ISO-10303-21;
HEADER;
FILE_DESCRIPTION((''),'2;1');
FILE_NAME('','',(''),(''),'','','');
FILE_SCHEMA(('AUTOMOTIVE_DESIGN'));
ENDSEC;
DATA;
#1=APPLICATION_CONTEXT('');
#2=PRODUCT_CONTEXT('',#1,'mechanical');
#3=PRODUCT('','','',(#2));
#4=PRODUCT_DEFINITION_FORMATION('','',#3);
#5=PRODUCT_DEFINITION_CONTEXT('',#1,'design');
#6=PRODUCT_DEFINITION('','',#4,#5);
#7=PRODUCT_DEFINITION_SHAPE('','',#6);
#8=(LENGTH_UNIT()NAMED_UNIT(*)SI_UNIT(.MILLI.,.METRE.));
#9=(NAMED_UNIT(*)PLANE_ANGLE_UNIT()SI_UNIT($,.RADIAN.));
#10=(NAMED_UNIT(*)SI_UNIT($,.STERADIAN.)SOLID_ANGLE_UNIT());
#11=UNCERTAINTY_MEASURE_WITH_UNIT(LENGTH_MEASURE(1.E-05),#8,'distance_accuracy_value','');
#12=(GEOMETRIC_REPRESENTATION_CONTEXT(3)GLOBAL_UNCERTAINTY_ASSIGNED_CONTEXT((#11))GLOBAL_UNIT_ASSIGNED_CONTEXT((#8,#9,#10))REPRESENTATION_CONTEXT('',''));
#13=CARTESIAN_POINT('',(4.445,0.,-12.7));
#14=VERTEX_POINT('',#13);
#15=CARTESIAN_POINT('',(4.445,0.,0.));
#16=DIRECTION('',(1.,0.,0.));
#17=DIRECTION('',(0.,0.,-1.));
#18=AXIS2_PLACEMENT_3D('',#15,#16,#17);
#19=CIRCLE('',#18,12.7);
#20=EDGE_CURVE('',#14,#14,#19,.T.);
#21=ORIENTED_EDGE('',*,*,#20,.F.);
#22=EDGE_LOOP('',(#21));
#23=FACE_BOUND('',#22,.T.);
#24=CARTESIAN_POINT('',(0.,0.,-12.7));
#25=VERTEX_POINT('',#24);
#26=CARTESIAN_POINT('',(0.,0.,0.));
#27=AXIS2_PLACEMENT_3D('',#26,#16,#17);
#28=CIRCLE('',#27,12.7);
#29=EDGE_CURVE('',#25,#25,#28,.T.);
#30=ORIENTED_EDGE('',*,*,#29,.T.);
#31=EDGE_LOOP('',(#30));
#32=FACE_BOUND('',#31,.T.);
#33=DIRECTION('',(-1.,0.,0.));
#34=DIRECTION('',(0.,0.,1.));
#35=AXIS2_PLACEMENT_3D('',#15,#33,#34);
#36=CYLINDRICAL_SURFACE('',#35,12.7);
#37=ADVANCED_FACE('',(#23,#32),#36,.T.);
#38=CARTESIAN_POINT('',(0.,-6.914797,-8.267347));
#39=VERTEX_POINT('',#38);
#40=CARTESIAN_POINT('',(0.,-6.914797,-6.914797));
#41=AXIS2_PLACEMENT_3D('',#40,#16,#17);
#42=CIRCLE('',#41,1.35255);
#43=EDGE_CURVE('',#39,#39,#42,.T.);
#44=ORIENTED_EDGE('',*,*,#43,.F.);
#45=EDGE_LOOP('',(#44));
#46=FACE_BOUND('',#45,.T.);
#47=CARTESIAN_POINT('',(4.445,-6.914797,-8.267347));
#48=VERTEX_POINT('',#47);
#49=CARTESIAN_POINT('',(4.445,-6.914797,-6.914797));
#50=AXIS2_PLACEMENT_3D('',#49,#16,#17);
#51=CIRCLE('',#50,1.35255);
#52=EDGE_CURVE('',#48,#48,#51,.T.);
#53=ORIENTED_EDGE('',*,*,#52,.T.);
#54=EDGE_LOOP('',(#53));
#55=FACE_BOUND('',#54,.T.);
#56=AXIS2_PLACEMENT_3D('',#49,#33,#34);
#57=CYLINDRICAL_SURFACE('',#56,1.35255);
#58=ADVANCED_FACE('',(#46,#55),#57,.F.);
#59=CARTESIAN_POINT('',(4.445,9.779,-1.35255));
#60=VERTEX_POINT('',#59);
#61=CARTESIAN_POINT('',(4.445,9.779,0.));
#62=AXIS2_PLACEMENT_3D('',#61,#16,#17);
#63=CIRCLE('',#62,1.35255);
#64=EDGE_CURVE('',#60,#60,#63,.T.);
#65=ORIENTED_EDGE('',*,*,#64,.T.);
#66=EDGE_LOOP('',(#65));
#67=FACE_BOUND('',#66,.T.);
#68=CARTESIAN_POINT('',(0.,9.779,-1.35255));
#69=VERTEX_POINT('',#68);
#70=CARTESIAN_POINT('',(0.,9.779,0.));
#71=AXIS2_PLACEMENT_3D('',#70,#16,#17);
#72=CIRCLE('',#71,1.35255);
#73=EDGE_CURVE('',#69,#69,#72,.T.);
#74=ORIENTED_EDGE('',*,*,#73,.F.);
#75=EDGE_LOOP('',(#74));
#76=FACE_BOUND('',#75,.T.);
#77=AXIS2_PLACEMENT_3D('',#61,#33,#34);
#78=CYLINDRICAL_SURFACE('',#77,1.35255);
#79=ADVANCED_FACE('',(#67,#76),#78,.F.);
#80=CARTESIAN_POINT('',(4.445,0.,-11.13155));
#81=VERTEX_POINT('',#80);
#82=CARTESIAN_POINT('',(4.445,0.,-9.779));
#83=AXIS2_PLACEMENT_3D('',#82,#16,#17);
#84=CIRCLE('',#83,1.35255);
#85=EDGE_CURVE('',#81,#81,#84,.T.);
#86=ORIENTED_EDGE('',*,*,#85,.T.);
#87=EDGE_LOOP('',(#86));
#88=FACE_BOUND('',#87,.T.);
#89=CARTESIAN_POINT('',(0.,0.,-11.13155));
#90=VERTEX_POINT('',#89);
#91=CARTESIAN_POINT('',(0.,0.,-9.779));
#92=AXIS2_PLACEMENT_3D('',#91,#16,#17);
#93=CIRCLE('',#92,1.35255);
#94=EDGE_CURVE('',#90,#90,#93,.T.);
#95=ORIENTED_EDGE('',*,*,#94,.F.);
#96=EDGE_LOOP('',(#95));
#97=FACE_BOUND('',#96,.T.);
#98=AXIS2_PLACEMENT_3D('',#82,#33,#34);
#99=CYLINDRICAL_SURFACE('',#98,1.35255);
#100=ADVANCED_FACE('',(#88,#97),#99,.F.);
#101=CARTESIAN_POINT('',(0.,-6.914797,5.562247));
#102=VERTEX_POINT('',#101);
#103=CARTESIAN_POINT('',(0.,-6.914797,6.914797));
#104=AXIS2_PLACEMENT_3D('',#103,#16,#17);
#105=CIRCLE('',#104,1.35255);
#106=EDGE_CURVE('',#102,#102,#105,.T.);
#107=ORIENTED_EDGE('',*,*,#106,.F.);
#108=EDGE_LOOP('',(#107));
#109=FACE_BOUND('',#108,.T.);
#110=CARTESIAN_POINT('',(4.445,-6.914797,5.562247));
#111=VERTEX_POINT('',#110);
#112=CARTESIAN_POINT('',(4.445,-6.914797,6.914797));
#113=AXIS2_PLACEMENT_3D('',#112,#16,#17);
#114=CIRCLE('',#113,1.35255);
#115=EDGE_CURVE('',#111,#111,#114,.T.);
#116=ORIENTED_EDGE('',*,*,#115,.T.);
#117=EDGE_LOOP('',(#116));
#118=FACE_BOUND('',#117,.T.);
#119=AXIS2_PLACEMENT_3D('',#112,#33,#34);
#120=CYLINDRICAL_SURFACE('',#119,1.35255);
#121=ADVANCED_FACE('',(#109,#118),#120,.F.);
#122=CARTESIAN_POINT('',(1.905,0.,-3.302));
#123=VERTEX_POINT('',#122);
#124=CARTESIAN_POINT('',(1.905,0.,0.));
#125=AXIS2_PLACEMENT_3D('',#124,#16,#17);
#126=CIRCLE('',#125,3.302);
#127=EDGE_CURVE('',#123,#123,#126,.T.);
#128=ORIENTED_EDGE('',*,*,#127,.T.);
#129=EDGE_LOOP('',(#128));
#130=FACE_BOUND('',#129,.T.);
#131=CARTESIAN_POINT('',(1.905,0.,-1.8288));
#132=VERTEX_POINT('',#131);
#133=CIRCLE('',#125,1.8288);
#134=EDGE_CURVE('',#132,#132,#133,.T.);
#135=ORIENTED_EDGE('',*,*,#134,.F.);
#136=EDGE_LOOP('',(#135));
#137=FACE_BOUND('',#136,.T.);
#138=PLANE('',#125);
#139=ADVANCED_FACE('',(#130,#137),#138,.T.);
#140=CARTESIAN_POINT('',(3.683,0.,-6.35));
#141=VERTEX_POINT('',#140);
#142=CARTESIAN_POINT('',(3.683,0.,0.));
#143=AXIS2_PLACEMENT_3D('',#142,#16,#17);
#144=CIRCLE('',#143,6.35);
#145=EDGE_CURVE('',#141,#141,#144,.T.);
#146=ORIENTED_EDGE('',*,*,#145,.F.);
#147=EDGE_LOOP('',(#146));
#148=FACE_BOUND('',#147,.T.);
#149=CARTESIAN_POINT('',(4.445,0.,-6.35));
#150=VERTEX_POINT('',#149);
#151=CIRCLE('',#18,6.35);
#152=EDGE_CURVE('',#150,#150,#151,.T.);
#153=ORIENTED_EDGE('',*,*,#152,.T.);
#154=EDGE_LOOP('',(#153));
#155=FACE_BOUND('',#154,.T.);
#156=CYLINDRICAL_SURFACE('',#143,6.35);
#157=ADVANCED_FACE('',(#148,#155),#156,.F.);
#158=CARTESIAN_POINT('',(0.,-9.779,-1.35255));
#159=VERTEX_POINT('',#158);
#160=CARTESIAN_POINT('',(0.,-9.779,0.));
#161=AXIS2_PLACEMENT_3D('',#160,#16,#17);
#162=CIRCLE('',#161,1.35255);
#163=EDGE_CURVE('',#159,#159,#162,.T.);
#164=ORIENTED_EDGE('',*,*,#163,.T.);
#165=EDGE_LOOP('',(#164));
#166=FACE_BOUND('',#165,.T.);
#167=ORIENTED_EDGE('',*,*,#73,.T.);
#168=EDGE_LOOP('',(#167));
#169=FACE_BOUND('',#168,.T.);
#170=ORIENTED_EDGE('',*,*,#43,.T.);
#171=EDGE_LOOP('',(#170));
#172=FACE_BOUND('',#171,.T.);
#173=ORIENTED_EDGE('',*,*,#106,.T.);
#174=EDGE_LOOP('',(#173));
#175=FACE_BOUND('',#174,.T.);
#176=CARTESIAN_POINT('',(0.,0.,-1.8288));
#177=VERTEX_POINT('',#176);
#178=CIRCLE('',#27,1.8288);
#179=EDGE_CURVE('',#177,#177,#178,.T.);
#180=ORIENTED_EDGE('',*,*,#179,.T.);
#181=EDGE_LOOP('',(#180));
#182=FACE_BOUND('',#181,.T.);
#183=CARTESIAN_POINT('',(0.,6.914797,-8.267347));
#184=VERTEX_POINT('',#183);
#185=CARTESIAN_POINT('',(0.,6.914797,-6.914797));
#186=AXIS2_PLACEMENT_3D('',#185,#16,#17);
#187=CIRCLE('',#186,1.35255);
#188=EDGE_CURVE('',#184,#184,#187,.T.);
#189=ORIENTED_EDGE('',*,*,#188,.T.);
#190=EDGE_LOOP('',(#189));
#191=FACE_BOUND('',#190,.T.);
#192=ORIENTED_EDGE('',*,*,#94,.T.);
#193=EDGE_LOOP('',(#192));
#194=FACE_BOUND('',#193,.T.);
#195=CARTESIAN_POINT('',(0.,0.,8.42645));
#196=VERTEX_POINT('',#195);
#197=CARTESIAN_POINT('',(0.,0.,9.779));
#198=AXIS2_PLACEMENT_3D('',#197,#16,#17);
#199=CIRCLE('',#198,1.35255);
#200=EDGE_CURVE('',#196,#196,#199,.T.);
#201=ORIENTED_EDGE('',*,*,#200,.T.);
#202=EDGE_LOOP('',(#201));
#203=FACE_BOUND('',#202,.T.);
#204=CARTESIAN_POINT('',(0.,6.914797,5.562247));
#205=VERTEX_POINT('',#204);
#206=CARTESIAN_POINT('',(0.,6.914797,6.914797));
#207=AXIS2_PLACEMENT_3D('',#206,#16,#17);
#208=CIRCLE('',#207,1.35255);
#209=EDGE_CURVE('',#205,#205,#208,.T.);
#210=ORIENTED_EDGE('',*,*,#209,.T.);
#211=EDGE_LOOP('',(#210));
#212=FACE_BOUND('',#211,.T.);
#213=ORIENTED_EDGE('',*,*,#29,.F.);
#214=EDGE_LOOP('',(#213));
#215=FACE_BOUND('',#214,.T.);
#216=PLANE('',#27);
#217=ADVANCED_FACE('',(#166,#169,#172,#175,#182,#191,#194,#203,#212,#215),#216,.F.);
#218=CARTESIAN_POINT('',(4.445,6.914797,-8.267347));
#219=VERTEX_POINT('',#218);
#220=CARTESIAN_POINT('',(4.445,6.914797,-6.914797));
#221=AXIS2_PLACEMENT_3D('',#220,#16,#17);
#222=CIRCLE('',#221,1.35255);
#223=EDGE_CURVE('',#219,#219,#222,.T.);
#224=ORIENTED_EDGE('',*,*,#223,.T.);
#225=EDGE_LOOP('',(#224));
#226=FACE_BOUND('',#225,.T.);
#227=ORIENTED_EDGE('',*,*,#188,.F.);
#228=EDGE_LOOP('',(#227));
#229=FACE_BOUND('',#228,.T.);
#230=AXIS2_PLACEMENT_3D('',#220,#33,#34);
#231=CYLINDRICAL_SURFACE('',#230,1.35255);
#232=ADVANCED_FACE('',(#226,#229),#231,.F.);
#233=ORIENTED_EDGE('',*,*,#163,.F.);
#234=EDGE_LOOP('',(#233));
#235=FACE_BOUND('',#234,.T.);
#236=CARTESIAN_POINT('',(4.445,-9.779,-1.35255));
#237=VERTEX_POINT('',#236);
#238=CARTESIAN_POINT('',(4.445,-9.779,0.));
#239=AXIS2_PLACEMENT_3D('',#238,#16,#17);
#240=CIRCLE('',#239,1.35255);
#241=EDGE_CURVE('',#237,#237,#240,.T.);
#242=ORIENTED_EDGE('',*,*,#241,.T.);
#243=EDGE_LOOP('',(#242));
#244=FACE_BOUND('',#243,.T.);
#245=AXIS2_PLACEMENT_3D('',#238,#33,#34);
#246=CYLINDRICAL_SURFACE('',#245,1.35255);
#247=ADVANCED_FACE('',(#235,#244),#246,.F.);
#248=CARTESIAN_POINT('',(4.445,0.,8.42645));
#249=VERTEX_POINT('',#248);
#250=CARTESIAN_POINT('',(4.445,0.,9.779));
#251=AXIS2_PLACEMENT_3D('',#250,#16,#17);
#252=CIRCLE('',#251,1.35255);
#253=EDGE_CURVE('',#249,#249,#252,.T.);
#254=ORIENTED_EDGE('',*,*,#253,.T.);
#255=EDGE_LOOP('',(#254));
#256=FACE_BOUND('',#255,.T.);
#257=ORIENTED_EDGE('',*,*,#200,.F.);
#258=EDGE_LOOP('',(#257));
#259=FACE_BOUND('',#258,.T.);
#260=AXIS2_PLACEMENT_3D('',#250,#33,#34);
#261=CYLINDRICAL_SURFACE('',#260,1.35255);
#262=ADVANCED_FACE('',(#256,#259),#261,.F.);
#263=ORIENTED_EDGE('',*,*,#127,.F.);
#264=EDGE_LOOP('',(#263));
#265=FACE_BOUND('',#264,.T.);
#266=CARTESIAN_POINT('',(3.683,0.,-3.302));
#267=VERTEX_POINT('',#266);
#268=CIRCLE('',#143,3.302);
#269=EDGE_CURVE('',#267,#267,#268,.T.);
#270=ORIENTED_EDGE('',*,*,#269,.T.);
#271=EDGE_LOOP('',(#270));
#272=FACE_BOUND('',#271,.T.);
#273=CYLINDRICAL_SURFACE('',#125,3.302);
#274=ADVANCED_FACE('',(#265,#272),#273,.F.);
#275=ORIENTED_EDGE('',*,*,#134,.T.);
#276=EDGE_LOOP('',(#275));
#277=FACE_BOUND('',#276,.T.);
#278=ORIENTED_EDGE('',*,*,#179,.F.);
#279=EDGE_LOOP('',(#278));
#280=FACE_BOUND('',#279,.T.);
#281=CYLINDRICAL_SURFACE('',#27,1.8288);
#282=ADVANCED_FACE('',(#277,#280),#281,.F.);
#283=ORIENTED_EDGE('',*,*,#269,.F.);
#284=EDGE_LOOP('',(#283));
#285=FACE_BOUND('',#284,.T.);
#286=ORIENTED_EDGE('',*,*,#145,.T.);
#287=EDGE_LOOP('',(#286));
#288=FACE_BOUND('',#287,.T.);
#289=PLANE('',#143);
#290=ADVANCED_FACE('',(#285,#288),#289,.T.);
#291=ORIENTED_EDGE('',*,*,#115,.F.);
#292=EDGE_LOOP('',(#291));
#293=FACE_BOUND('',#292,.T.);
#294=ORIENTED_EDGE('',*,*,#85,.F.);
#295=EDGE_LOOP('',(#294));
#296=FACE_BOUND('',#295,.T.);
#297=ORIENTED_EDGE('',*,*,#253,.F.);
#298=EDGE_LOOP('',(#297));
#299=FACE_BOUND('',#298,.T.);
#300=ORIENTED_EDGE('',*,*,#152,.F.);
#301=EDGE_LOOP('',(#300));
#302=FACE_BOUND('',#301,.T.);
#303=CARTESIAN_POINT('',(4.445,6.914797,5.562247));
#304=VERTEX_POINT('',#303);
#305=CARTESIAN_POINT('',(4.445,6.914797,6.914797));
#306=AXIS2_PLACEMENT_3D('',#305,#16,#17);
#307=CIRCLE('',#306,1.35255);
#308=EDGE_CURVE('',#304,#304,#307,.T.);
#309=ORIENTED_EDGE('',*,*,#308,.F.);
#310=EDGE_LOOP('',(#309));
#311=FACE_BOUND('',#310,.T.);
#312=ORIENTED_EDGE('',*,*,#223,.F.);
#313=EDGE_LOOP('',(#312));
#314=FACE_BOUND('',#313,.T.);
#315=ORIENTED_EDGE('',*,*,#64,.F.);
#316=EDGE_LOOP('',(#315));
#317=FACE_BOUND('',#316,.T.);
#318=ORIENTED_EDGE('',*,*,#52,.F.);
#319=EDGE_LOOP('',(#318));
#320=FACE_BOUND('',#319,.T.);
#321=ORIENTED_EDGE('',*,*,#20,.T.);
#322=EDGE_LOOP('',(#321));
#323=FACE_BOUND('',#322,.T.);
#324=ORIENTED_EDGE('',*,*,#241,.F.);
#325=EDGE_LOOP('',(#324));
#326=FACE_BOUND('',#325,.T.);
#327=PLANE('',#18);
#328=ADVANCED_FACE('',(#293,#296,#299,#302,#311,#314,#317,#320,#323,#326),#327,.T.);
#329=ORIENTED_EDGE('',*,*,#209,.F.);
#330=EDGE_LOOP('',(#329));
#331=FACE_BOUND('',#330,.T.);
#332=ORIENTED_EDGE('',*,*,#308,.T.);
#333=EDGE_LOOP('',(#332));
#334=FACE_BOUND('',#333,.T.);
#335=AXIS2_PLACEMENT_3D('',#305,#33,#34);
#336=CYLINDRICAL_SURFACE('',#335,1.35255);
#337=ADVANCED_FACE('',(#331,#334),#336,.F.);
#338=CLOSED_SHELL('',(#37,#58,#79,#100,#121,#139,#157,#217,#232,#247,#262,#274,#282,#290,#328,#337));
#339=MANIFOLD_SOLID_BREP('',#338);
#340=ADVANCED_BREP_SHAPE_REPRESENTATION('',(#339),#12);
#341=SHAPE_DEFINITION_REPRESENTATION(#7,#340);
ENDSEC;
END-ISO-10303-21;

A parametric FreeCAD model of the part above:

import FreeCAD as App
import Part
import Sketcher
from FreeCAD import Vector
Q = App.Units.Quantity

doc = App.newDocument("Part")
body = doc.addObject("PartDesign::Body", "Body")

# Sketch on YZ plane
sketch1 = body.newObject("Sketcher::SketchObject", "Sketch")
sketch1.AttachmentSupport = (doc.getObject("YZ_Plane"), [""])
sketch1.MapMode = "FlatFace"
sketch1.addGeometry([
    Part.Circle(Vector(0, 0, 0), Vector(0, 0, 1), 12.7),  # 0
    Part.Circle(Vector(-6.914797, 6.914797, 0), Vector(0, 0, 1), 1.35255),  # 1
    Part.Circle(Vector(-9.779, 0, 0), Vector(0, 0, 1), 1.35255),  # 2
    Part.Circle(Vector(-6.914797, -6.914797, 0), Vector(0, 0, 1), 1.35255),  # 3
    Part.Circle(Vector(0, 9.779, 0), Vector(0, 0, 1), 1.35255),  # 4
    Part.Circle(Vector(6.914797, 6.914797, 0), Vector(0, 0, 1), 1.35255),  # 5
    Part.Circle(Vector(0, -9.779, 0), Vector(0, 0, 1), 1.35255),  # 6
    Part.Circle(Vector(9.779, 0, 0), Vector(0, 0, 1), 1.35255),  # 7
    Part.Circle(Vector(6.914797, -6.914797, 0), Vector(0, 0, 1), 1.35255),  # 8
], False)
sketch1.addConstraint([
    Sketcher.Constraint("Coincident", 0, 3, -1, 1),
    Sketcher.Constraint("Equal", 1, 2),
    Sketcher.Constraint("Equal", 2, 3),
    Sketcher.Constraint("Equal", 3, 4),
    Sketcher.Constraint("Equal", 4, 5),
    Sketcher.Constraint("Equal", 5, 6),
    Sketcher.Constraint("Equal", 6, 7),
    Sketcher.Constraint("Equal", 7, 8),
    Sketcher.Constraint("Symmetric", 3, 3, 5, 3, -1, 1),
    Sketcher.Constraint("Symmetric", 4, 3, 6, 3, -1, 1),
    Sketcher.Constraint("Symmetric", 2, 3, 7, 3, -1, 1),
    Sketcher.Constraint("Symmetric", 1, 3, 8, 3, -1, 1),
    Sketcher.Constraint("Symmetric", 1, 3, 5, 3, -2),
    Sketcher.Constraint("PointOnObject", 2, 3, -1),
    Sketcher.Constraint("PointOnObject", 4, 3, -2),
    Sketcher.Constraint("Diameter", 0, Q("1 in")),
    Sketcher.Constraint("Diameter", 1, Q("0.1065 in")),
    Sketcher.Constraint("DistanceX", 2, 3, -1, 1, Q("0.385 in")),
    Sketcher.Constraint("DistanceY", -1, 1, 4, 3, Q("0.385 in")),
    Sketcher.Constraint("DistanceX", 1, 3, -1, 1, Q("6.914797 mm")),
    Sketcher.Constraint("DistanceY", -1, 1, 1, 3, Q("6.914797 mm")),
])
pad1 = body.newObject("PartDesign::Pad", "Pad")
pad1.Profile = sketch1
pad1.Length = Q("0.175 in")

# Sketch on YZ plane
sketch2 = body.newObject("Sketcher::SketchObject", "Sketch001")
sketch2.AttachmentSupport = (doc.getObject("YZ_Plane"), [""])
sketch2.MapMode = "FlatFace"
sketch2.AttachmentOffset = App.Placement(Vector(0, 0, 0.175 * 25.4), App.Rotation())
sketch2.addGeometry(Part.Circle(Vector(0, 0, 0), Vector(0, 0, 1), 6.35), False)
sketch2.addConstraint([
    Sketcher.Constraint("Coincident", 0, 3, -1, 1),
    Sketcher.Constraint("Diameter", 0, Q("0.5 in")),
])
pocket1 = body.newObject("PartDesign::Pocket", "Pocket")
pocket1.Profile = sketch2
pocket1.Length = Q("0.03 in")

# Sketch on YZ plane
sketch3 = body.newObject("Sketcher::SketchObject", "Sketch002")
sketch3.AttachmentSupport = (doc.getObject("YZ_Plane"), [""])
sketch3.MapMode = "FlatFace"
sketch3.AttachmentOffset = App.Placement(Vector(0, 0, 0.145 * 25.4), App.Rotation())
sketch3.addGeometry(Part.Circle(Vector(0, 0, 0), Vector(0, 0, 1), 3.302), False)
sketch3.addConstraint([
    Sketcher.Constraint("Coincident", 0, 3, -1, 1),
    Sketcher.Constraint("Diameter", 0, Q("0.26 in")),
])
pocket2 = body.newObject("PartDesign::Pocket", "Pocket001")
pocket2.Profile = sketch3
pocket2.Length = Q("0.07 in")

# Sketch on YZ plane
sketch4 = body.newObject("Sketcher::SketchObject", "Sketch003")
sketch4.AttachmentSupport = (doc.getObject("YZ_Plane"), [""])
sketch4.MapMode = "FlatFace"
sketch4.AttachmentOffset = App.Placement(Vector(0, 0, 0.075 * 25.4), App.Rotation())
sketch4.addGeometry(Part.Circle(Vector(0, 0, 0), Vector(0, 0, 1), 1.8288), False)
sketch4.addConstraint([
    Sketcher.Constraint("Coincident", 0, 3, -1, 1),
    Sketcher.Constraint("Diameter", 0, Q("0.144 in")),
])
pocket3 = body.newObject("PartDesign::Pocket", "Pocket002")
pocket3.Profile = sketch4
pocket3.Type = "ThroughAll"

doc.recompute()
